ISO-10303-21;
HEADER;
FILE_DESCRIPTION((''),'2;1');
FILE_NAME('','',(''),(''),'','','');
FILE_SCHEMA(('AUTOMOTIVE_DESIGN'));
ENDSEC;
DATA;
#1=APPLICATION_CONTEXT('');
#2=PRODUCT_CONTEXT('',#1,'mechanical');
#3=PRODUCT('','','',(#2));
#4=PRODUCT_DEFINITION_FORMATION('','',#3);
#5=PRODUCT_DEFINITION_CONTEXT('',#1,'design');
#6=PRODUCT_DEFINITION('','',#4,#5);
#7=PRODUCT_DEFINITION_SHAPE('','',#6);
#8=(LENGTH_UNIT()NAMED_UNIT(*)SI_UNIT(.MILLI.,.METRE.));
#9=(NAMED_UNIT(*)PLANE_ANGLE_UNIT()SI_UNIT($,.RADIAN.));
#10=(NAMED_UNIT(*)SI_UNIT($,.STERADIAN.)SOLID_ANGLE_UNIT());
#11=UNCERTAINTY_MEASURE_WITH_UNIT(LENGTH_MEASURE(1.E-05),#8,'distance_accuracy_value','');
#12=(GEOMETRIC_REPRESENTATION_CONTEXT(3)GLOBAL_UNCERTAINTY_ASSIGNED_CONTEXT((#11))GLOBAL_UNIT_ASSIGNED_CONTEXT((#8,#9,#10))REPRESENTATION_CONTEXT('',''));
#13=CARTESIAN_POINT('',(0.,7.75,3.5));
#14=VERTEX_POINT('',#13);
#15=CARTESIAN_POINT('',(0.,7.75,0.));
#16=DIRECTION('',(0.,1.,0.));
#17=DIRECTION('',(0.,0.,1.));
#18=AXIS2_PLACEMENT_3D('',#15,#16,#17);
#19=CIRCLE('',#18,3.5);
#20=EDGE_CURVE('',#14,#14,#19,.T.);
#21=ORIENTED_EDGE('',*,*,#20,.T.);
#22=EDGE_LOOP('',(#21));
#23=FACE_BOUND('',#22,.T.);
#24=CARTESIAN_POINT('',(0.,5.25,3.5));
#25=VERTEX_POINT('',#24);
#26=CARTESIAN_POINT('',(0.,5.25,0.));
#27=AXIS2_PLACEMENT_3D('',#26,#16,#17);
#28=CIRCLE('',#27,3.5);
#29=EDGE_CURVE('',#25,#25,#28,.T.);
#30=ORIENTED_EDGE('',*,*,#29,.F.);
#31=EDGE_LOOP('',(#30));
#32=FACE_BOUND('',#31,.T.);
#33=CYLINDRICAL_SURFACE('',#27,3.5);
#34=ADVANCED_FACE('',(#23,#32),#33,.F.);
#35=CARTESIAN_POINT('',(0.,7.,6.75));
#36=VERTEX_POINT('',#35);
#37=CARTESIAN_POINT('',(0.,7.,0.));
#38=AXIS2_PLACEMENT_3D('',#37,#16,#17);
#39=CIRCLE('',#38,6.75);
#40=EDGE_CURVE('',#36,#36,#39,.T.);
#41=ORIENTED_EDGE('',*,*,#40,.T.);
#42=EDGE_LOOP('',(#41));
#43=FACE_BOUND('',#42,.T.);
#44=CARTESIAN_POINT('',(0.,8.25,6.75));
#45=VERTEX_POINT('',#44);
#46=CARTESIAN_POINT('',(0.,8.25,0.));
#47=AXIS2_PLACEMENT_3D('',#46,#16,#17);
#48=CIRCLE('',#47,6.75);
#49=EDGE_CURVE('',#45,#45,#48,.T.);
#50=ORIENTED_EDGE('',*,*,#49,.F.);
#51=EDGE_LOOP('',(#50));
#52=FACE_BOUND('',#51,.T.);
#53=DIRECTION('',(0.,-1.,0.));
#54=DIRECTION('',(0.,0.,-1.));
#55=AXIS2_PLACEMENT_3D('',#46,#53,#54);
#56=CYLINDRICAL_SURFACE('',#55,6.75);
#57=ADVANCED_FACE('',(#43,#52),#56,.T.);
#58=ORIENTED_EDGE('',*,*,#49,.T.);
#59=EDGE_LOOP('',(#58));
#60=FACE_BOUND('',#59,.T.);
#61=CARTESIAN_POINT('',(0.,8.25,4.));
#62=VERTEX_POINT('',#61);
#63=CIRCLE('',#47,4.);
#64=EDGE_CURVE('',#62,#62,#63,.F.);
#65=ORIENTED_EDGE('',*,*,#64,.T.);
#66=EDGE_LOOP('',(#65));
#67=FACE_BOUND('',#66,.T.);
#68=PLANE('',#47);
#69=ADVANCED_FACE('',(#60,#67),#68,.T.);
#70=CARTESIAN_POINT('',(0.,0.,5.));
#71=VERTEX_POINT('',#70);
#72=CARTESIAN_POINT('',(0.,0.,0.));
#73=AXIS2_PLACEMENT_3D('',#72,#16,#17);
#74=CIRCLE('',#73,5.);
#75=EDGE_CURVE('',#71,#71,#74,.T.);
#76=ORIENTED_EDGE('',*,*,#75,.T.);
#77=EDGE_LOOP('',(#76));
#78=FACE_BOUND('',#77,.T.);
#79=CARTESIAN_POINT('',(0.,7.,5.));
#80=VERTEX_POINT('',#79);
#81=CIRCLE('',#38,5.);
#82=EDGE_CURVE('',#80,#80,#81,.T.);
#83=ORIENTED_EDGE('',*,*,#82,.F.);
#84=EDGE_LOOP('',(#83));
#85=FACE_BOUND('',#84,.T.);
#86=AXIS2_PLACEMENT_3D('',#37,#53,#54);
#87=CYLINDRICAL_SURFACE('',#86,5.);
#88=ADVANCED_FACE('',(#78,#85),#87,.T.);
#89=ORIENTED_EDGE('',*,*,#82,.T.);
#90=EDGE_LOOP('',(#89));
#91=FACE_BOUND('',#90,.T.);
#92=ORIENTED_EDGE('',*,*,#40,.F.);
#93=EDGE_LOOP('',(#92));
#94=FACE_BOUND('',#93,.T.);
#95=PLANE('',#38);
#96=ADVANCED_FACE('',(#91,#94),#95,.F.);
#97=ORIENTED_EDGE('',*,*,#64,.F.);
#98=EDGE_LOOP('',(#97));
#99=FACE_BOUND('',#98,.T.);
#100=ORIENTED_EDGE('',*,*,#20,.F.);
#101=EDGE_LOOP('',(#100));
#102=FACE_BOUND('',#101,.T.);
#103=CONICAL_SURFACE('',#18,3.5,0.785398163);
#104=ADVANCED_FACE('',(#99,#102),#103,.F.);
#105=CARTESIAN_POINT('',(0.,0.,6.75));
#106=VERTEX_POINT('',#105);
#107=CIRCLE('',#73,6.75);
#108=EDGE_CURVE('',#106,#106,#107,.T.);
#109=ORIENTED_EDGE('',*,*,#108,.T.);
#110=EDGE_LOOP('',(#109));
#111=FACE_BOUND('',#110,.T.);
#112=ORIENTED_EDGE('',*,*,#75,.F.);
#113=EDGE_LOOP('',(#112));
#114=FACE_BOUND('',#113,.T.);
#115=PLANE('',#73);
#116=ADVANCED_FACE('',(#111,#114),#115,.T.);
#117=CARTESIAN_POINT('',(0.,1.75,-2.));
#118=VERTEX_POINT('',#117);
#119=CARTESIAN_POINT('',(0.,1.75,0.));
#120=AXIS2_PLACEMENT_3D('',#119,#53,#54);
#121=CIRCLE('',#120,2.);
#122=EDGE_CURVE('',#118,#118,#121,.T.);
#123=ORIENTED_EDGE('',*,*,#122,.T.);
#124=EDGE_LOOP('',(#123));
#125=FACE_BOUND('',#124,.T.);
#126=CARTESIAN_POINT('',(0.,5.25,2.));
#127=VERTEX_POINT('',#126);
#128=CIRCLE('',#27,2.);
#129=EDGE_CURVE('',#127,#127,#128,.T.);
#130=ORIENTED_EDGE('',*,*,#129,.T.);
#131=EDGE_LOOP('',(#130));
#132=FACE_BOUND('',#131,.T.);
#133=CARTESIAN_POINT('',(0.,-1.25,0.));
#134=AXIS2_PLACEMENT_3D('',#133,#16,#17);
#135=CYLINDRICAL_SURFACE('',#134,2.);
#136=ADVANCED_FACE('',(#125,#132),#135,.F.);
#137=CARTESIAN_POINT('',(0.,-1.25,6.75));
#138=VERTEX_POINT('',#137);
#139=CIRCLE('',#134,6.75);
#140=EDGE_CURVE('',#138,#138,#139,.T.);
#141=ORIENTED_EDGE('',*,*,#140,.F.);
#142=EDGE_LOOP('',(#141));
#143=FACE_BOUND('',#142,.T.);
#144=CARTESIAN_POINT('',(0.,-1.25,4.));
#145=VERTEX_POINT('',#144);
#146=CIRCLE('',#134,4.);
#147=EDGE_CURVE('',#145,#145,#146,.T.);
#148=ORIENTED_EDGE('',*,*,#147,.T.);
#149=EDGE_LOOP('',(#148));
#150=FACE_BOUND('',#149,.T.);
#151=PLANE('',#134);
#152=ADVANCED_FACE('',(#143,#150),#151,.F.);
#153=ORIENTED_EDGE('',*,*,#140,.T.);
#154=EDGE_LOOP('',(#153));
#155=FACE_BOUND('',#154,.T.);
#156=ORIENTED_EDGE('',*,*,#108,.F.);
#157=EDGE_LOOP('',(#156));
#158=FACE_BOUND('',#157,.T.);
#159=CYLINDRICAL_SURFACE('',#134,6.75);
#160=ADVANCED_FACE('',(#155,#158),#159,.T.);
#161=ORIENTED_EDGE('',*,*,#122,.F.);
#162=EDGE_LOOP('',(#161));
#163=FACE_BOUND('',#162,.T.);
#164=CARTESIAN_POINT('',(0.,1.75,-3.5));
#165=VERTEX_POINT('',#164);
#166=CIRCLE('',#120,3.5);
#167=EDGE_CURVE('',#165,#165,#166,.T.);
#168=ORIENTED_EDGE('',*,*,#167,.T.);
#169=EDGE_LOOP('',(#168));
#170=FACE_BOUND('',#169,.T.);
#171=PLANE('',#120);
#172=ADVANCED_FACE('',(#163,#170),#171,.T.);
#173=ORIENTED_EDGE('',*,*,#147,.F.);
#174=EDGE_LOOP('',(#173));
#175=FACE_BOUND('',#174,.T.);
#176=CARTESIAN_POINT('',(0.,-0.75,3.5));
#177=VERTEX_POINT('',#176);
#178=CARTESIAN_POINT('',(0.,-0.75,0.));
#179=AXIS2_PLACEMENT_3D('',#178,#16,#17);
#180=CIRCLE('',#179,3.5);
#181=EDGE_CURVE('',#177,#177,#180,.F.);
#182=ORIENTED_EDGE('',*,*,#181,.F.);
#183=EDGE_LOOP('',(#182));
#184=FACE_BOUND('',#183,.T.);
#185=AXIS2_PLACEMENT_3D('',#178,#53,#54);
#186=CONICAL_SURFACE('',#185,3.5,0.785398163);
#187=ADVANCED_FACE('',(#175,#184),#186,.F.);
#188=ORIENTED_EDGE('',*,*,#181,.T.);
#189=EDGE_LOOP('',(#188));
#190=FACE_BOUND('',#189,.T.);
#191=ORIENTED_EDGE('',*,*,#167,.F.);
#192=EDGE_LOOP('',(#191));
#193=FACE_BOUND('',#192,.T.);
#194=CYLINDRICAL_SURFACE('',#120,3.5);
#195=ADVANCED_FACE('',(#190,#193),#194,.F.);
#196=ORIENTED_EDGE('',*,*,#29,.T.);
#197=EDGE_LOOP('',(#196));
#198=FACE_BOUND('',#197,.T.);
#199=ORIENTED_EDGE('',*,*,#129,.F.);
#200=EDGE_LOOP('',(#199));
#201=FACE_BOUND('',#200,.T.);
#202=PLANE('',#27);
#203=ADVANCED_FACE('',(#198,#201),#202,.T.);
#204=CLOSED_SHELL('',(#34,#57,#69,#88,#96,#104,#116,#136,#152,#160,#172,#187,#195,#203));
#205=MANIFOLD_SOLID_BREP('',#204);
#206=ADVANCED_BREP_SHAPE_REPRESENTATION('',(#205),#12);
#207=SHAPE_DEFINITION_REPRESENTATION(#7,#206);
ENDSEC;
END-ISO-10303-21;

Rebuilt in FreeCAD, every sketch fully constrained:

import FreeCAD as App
import Part
import Sketcher
from FreeCAD import Vector
Q = App.Units.Quantity


def edges_at(feature, points):
    """Names of the edges that pass closest to the given points."""
    edges = feature.Shape.Edges
    near = lambda p: min(range(len(edges)), key=lambda i: edges[i].distToShape(Part.Vertex(*p))[0])
    return sorted({f"Edge{near(p) + 1}" for p in points})

doc = App.newDocument("Part")
body = doc.addObject("PartDesign::Body", "Body")

# Sketch on XZ plane
sketch1 = body.newObject("Sketcher::SketchObject", "Sketch")
sketch1.AttachmentSupport = (doc.getObject("XZ_Plane"), [""])
sketch1.MapMode = "FlatFace"
sketch1.addGeometry(Part.Circle(Vector(0, 0, 0), Vector(0, 0, 1), 5), False)
sketch1.addConstraint([
    Sketcher.Constraint("Coincident", 0, 3, -1, 1),
    Sketcher.Constraint("Diameter", 0, Q("10 mm")),
])
pad1 = body.newObject("PartDesign::Pad", "Pad")
pad1.Profile = sketch1
pad1.Length = 7
pad1.Reversed = True

# Sketch on XZ plane
sketch2 = body.newObject("Sketcher::SketchObject", "Sketch001")
sketch2.AttachmentSupport = (doc.getObject("XZ_Plane"), [""])
sketch2.MapMode = "FlatFace"
sketch2.AttachmentOffset = App.Placement(Vector(0, 0, -7), App.Rotation())
sketch2.addGeometry(Part.Circle(Vector(0, 0, 0), Vector(0, 0, 1), 7), False)
sketch2.addConstraint([
    Sketcher.Constraint("Coincident", 0, 3, -1, 1),
    Sketcher.Constraint("Diameter", 0, Q("13.5 mm")),
])
pad2 = body.newObject("PartDesign::Pad", "Pad001")
pad2.Profile = sketch2
pad2.Length = 1.25
pad2.Reversed = True

# Sketch on XZ plane
sketch3 = body.newObject("Sketcher::SketchObject", "Sketch002")
sketch3.AttachmentSupport = (doc.getObject("XZ_Plane"), [""])
sketch3.MapMode = "FlatFace"
sketch3.addGeometry(Part.Circle(Vector(0, 0, 0), Vector(0, 0, 1), 7), False)
sketch3.addConstraint([
    Sketcher.Constraint("Coincident", 0, 3, -1, 1),
    Sketcher.Constraint("Diameter", 0, Q("13.5 mm")),
])
pad3 = body.newObject("PartDesign::Pad", "Pad002")
pad3.Profile = sketch3
pad3.Length = 1.25

# Sketch on XZ plane
sketch4 = body.newObject("Sketcher::SketchObject", "Sketch003")
sketch4.AttachmentSupport = (doc.getObject("XZ_Plane"), [""])
sketch4.MapMode = "FlatFace"
sketch4.AttachmentOffset = App.Placement(Vector(0, 0, 1.25), App.Rotation())
sketch4.addGeometry(Part.Circle(Vector(0, 0, 0), Vector(0, 0, 1), 3.5), False)
sketch4.addConstraint([
    Sketcher.Constraint("Coincident", 0, 3, -1, 1),
    Sketcher.Constraint("Diameter", 0, Q("7 mm")),
])
pocket1 = body.newObject("PartDesign::Pocket", "Pocket")
pocket1.Profile = sketch4
pocket1.Length = 3

# Sketch on XZ plane
sketch5 = body.newObject("Sketcher::SketchObject", "Sketch004")
sketch5.AttachmentSupport = (doc.getObject("XZ_Plane"), [""])
sketch5.MapMode = "FlatFace"
sketch5.AttachmentOffset = App.Placement(Vector(0, 0, -8.25), App.Rotation())
sketch5.addGeometry(Part.Circle(Vector(0, 0, 0), Vector(0, 0, 1), 3.5), False)
sketch5.addConstraint([
    Sketcher.Constraint("Coincident", 0, 3, -1, 1),
    Sketcher.Constraint("Diameter", 0, Q("7 mm")),
])
pocket2 = body.newObject("PartDesign::Pocket", "Pocket001")
pocket2.Profile = sketch5
pocket2.Length = 3
pocket2.Reversed = True

# Sketch on XZ plane
sketch6 = body.newObject("Sketcher::SketchObject", "Sketch005")
sketch6.AttachmentSupport = (doc.getObject("XZ_Plane"), [""])
sketch6.MapMode = "FlatFace"
sketch6.AttachmentOffset = App.Placement(Vector(0, 0, -5.25), App.Rotation())
sketch6.addGeometry(Part.Circle(Vector(0, 0, 0), Vector(0, 0, 1), 2), False)
sketch6.addConstraint([
    Sketcher.Constraint("Coincident", 0, 3, -1, 1),
    Sketcher.Constraint("Diameter", 0, Q("4 mm")),
])
pocket3 = body.newObject("PartDesign::Pocket", "Pocket002")
pocket3.Profile = sketch6
pocket3.Type = "ThroughAll"
pocket3.Reversed = True
doc.recompute()

chamfer = body.newObject("PartDesign::Chamfer", "Chamfer")
chamfer.Base = (pocket3, edges_at(pocket3, [(-3.5, -1.25, 0), (-3.5, 8.25, 0)]))
chamfer.Size = 0.5

doc.recompute()
